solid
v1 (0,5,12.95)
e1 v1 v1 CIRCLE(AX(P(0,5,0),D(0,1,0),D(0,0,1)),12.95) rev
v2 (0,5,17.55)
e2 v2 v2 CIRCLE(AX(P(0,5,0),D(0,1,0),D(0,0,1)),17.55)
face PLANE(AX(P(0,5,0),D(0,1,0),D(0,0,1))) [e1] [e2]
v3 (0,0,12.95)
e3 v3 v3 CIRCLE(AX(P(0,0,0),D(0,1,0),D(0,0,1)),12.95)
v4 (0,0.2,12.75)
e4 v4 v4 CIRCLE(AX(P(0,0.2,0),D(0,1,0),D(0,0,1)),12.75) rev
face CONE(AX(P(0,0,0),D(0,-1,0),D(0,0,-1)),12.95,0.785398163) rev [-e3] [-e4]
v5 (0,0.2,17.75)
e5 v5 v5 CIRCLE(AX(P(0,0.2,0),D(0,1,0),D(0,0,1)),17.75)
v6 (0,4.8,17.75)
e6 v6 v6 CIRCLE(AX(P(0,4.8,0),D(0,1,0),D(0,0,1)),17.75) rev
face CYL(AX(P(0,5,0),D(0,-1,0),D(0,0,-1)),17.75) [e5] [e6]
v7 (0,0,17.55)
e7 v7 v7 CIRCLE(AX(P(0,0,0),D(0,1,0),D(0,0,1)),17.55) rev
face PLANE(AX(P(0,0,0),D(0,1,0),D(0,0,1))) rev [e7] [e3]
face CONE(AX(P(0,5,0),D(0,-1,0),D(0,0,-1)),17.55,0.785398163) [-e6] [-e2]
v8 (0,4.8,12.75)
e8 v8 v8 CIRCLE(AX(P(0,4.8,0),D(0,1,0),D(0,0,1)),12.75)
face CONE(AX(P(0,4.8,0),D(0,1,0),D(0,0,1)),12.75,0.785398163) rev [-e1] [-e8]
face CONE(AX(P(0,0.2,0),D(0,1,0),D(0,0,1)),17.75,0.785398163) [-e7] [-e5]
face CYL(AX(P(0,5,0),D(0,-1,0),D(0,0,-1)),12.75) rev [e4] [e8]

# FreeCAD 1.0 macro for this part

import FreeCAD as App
import Part
import Sketcher

V = App.Vector


def edges_at(feature, points):
    """Names of the edges that pass closest to the given points."""
    edges = feature.Shape.Edges
    near = lambda p: min(range(len(edges)), key=lambda i: edges[i].distToShape(Part.Vertex(*p))[0])
    return sorted({f"Edge{near(p) + 1}" for p in points})

doc = App.newDocument("Part")
body = doc.addObject("PartDesign::Body", "Body")

# Sketch on XZ plane
sketch1 = doc.addObject("Sketcher::SketchObject", "Sketch")
body.addObject(sketch1)
sketch1.AttachmentSupport = (doc.XZ_Plane, [""])
sketch1.MapMode = "FlatFace"
sketch1.addGeometry([
    Part.Circle(V(0, 0, 0), V(0, 0, 1), 18),
    Part.Circle(V(0, 0, 0), V(0, 0, 1), 13),
], False)
sketch1.addConstraint([
    Sketcher.Constraint("Coincident", 0, 3, -1, 1),
    Sketcher.Constraint("Coincident", 1, 3, -1, 1),
    Sketcher.Constraint("Diameter", 0, 35.5),
    Sketcher.Constraint("Diameter", 1, 25.5),
])
pad1 = doc.addObject("PartDesign::Pad", "Pad")
body.addObject(pad1)
pad1.Profile = sketch1
pad1.Length = 5
pad1.Reversed = True
doc.recompute()

chamfer = doc.addObject("PartDesign::Chamfer", "Chamfer")
body.addObject(chamfer)
chamfer.Base = (pad1, edges_at(pad1, [
    (0, 0, -17.75),
    (0, 5, -17.75),
    (0, 0, -12.75),
    (0, 5, -12.75),
]))
chamfer.Size = 0.2

doc.recompute()
